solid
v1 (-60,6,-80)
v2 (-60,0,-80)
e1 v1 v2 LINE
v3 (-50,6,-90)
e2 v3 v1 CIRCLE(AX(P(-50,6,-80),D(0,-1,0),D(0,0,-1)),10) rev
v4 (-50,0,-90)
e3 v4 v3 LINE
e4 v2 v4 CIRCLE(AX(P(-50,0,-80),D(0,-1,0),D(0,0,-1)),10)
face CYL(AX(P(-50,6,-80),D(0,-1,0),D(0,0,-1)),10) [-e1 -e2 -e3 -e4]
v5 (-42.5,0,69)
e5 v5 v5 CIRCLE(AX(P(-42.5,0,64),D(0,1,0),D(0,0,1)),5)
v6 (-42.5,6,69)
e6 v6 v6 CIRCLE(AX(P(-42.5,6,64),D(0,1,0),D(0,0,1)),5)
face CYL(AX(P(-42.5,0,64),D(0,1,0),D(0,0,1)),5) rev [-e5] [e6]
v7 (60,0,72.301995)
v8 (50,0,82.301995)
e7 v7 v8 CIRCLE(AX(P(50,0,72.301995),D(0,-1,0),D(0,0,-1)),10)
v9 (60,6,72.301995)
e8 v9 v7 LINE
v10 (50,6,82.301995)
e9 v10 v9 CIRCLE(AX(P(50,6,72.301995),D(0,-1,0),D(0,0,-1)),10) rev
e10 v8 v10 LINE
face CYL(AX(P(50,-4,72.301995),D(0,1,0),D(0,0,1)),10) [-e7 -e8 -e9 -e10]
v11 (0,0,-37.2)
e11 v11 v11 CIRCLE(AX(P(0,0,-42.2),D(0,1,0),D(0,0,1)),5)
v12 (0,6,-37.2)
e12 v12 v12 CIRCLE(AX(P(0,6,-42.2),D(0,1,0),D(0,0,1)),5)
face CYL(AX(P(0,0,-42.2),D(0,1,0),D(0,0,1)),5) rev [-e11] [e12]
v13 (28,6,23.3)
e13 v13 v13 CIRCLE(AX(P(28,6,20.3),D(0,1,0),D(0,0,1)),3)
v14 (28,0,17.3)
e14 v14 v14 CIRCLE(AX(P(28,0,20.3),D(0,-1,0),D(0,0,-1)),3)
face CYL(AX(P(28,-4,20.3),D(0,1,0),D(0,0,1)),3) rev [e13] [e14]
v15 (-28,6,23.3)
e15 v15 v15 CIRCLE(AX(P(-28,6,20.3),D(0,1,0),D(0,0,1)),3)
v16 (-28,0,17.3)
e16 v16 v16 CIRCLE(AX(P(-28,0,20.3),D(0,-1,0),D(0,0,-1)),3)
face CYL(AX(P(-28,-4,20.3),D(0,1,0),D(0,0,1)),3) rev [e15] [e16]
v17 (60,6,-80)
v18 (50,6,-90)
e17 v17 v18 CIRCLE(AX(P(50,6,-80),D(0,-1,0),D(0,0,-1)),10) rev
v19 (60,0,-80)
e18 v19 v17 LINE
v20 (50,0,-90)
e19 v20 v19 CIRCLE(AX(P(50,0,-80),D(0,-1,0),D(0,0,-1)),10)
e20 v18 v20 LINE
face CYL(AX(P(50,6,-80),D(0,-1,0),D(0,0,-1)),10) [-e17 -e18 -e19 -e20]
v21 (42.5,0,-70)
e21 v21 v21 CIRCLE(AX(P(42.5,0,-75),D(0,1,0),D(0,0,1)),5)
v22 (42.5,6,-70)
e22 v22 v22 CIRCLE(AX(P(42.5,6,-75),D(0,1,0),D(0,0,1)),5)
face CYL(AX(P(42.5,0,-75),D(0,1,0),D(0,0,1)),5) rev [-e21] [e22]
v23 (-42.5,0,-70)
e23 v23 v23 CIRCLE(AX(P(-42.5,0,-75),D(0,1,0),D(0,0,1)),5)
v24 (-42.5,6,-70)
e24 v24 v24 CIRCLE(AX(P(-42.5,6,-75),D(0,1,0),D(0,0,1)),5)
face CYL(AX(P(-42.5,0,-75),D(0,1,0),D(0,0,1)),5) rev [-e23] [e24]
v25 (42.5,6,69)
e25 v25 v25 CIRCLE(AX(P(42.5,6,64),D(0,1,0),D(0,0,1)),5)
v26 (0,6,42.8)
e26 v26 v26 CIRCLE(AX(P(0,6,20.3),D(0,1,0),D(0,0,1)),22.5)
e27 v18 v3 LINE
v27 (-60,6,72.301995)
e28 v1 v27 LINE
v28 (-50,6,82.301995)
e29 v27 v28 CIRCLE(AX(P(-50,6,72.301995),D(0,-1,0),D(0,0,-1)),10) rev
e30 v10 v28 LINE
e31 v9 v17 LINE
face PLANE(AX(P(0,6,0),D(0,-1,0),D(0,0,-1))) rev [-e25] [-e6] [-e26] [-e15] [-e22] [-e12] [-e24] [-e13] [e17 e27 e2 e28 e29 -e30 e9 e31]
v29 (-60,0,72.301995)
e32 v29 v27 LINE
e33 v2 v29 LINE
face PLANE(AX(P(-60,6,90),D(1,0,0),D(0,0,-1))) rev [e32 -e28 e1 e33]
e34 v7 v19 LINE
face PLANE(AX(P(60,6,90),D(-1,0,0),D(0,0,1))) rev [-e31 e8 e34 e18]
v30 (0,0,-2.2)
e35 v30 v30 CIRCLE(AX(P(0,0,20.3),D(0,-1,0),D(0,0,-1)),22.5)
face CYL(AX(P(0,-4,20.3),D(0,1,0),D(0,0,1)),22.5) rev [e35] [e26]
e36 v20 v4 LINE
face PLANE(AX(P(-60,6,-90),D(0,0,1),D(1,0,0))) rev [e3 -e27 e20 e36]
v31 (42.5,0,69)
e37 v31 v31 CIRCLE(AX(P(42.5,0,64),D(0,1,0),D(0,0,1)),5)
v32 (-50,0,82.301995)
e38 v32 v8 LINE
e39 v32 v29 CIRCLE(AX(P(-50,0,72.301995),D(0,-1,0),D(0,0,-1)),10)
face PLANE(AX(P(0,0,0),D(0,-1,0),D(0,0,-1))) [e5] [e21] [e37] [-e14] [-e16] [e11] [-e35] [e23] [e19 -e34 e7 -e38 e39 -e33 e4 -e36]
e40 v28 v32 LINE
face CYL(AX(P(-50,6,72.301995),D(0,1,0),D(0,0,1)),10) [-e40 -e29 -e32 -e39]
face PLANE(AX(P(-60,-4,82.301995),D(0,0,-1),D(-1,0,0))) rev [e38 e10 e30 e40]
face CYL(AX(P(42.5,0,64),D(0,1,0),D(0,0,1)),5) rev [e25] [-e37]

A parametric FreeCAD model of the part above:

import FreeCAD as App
import Part
import Sketcher
from FreeCAD import Vector


def edges_at(feature, points):
    """Names of the edges that pass closest to the given points."""
    edges = feature.Shape.Edges
    near = lambda p: min(range(len(edges)), key=lambda i: edges[i].distToShape(Part.Vertex(*p))[0])
    return sorted({f"Edge{near(p) + 1}" for p in points})

doc = App.newDocument("Part")
body = doc.addObject("PartDesign::Body", "Body")

# Sketch on XZ plane
sketch1 = body.newObject("Sketcher::SketchObject", "Sketch")
sketch1.AttachmentSupport = (doc.getObject("XZ_Plane"), [""])
sketch1.MapMode = "FlatFace"
sketch1.addGeometry([
    Part.LineSegment(Vector(-60, -90, 0), Vector(-60, 90, 0)),
    Part.LineSegment(Vector(-60, 90, 0), Vector(60, 90, 0)),
    Part.LineSegment(Vector(60, 90, 0), Vector(60, -90, 0)),
    Part.LineSegment(Vector(60, -90, 0), Vector(-60, -90, 0)),
], False)
sketch1.addConstraint([
    Sketcher.Constraint("Coincident", 0, 2, 1, 1),
    Sketcher.Constraint("Coincident", 1, 2, 2, 1),
    Sketcher.Constraint("Coincident", 2, 2, 3, 1),
    Sketcher.Constraint("Coincident", 3, 2, 0, 1),
    Sketcher.Constraint("Vertical", 0),
    Sketcher.Constraint("Horizontal", 1),
    Sketcher.Constraint("Vertical", 2),
    Sketcher.Constraint("Horizontal", 3),
    Sketcher.Constraint("Symmetric", 0, 2, 2, 2, -1, 1),
    Sketcher.Constraint("DistanceX", 1, 1, 1, 2, 120.0),
    Sketcher.Constraint("DistanceY", 0, 1, 0, 2, 180.0),
])
pad1 = body.newObject("PartDesign::Pad", "Pad")
pad1.Profile = sketch1
pad1.Length = 6
pad1.Reversed = True

# Sketch on XZ plane
sketch2 = body.newObject("Sketcher::SketchObject", "Sketch001")
sketch2.AttachmentSupport = (doc.getObject("XZ_Plane"), [""])
sketch2.MapMode = "FlatFace"
sketch2.AttachmentOffset = App.Placement(Vector(0, 0, -6), App.Rotation())
sketch2.addGeometry([
    Part.Circle(Vector(-42.5, -75, 0), Vector(0, 0, 1), 5),  # 0
    Part.Circle(Vector(42.5, -75, 0), Vector(0, 0, 1), 5),  # 1
    Part.Circle(Vector(-42.5, 64, 0), Vector(0, 0, 1), 5),  # 2
    Part.Circle(Vector(42.5, 64, 0), Vector(0, 0, 1), 5),  # 3
    Part.Circle(Vector(0, -42.2, 0), Vector(0, 0, 1), 5),  # 4
], False)
sketch2.addConstraint([
    Sketcher.Constraint("Equal", 0, 1),
    Sketcher.Constraint("Equal", 1, 2),
    Sketcher.Constraint("Equal", 2, 3),
    Sketcher.Constraint("Equal", 3, 4),
    Sketcher.Constraint("Symmetric", 0, 3, 1, 3, -2),
    Sketcher.Constraint("Symmetric", 2, 3, 3, 3, -2),
    Sketcher.Constraint("PointOnObject", 4, 3, -2),
    Sketcher.Constraint("Vertical", 0, 3, 2, 3),
    Sketcher.Constraint("Diameter", 0, 10.0),
    Sketcher.Constraint("DistanceY", 0, 3, -1, 1, 75.0),
    Sketcher.Constraint("DistanceY", -1, 1, 2, 3, 64.0),
    Sketcher.Constraint("DistanceX", 0, 3, 1, 3, 85.0),
    Sketcher.Constraint("DistanceY", 4, 3, -1, 1, 42.2),
])
pocket1 = body.newObject("PartDesign::Pocket", "Pocket")
pocket1.Profile = sketch2
pocket1.Length = 6
pocket1.Reversed = True

# Sketch on XZ plane
sketch3 = body.newObject("Sketcher::SketchObject", "Sketch002")
sketch3.AttachmentSupport = (doc.getObject("XZ_Plane"), [""])
sketch3.MapMode = "FlatFace"
sketch3.AttachmentOffset = App.Placement(Vector(0, 0, -6), App.Rotation())
sketch3.addGeometry([
    Part.Circle(Vector(0, 20.3, 0), Vector(0, 0, 1), 22.5),
    Part.Circle(Vector(-28, 20.3, 0), Vector(0, 0, 1), 3),
    Part.Circle(Vector(28, 20.3, 0), Vector(0, 0, 1), 3),
], False)
sketch3.addConstraint([
    Sketcher.Constraint("Equal", 1, 2),
    Sketcher.Constraint("Symmetric", 1, 3, 2, 3, -2),
    Sketcher.Constraint("PointOnObject", 0, 3, -2),
    Sketcher.Constraint("Horizontal", 0, 3, 1, 3),
    Sketcher.Constraint("Diameter", 0, 45.0),
    Sketcher.Constraint("Diameter", 1, 6.0),
    Sketcher.Constraint("DistanceX", 1, 3, -1, 1, 28.0),
    Sketcher.Constraint("DistanceY", -1, 1, 0, 3, 20.3),
])
pocket2 = body.newObject("PartDesign::Pocket", "Pocket001")
pocket2.Profile = sketch3
pocket2.Length = 10
pocket2.Reversed = True

# Sketch on XZ plane
sketch4 = body.newObject("Sketcher::SketchObject", "Sketch003")
sketch4.AttachmentSupport = (doc.getObject("XZ_Plane"), [""])
sketch4.MapMode = "FlatFace"
sketch4.AttachmentOffset = App.Placement(Vector(0, 0, -6), App.Rotation())
sketch4.addGeometry([
    Part.LineSegment(Vector(-60, 82.301995, 0), Vector(-60, 90, 0)),
    Part.LineSegment(Vector(-60, 90, 0), Vector(60, 90, 0)),
    Part.LineSegment(Vector(60, 90, 0), Vector(60, 82.301995, 0)),
    Part.LineSegment(Vector(60, 82.301995, 0), Vector(-60, 82.301995, 0)),
], False)
sketch4.addConstraint([
    Sketcher.Constraint("Coincident", 0, 2, 1, 1),
    Sketcher.Constraint("Coincident", 1, 2, 2, 1),
    Sketcher.Constraint("Coincident", 2, 2, 3, 1),
    Sketcher.Constraint("Coincident", 3, 2, 0, 1),
    Sketcher.Constraint("Vertical", 0),
    Sketcher.Constraint("Horizontal", 1),
    Sketcher.Constraint("Vertical", 2),
    Sketcher.Constraint("Horizontal", 3),
    Sketcher.Constraint("DistanceX", 1, 1, 1, 2, 120.0),
    Sketcher.Constraint("DistanceX", 0, 2, -1, 1, 60.0),
    Sketcher.Constraint("DistanceY", -1, 1, 0, 2, 90.0),
    Sketcher.Constraint("DistanceY", 0, 1, 0, 2, 7.698005),
])
pocket3 = body.newObject("PartDesign::Pocket", "Pocket002")
pocket3.Profile = sketch4
pocket3.Length = 10
pocket3.Reversed = True
doc.recompute()

fillet = body.newObject("PartDesign::Fillet", "Fillet")
fillet.Base = (pocket3, edges_at(pocket3, [
    (-60, 3, 82.302),
    (60, 3, 82.302),
    (-60, 3, -90),
    (60, 3, -90),
]))
fillet.Radius = 10

doc.recompute()
